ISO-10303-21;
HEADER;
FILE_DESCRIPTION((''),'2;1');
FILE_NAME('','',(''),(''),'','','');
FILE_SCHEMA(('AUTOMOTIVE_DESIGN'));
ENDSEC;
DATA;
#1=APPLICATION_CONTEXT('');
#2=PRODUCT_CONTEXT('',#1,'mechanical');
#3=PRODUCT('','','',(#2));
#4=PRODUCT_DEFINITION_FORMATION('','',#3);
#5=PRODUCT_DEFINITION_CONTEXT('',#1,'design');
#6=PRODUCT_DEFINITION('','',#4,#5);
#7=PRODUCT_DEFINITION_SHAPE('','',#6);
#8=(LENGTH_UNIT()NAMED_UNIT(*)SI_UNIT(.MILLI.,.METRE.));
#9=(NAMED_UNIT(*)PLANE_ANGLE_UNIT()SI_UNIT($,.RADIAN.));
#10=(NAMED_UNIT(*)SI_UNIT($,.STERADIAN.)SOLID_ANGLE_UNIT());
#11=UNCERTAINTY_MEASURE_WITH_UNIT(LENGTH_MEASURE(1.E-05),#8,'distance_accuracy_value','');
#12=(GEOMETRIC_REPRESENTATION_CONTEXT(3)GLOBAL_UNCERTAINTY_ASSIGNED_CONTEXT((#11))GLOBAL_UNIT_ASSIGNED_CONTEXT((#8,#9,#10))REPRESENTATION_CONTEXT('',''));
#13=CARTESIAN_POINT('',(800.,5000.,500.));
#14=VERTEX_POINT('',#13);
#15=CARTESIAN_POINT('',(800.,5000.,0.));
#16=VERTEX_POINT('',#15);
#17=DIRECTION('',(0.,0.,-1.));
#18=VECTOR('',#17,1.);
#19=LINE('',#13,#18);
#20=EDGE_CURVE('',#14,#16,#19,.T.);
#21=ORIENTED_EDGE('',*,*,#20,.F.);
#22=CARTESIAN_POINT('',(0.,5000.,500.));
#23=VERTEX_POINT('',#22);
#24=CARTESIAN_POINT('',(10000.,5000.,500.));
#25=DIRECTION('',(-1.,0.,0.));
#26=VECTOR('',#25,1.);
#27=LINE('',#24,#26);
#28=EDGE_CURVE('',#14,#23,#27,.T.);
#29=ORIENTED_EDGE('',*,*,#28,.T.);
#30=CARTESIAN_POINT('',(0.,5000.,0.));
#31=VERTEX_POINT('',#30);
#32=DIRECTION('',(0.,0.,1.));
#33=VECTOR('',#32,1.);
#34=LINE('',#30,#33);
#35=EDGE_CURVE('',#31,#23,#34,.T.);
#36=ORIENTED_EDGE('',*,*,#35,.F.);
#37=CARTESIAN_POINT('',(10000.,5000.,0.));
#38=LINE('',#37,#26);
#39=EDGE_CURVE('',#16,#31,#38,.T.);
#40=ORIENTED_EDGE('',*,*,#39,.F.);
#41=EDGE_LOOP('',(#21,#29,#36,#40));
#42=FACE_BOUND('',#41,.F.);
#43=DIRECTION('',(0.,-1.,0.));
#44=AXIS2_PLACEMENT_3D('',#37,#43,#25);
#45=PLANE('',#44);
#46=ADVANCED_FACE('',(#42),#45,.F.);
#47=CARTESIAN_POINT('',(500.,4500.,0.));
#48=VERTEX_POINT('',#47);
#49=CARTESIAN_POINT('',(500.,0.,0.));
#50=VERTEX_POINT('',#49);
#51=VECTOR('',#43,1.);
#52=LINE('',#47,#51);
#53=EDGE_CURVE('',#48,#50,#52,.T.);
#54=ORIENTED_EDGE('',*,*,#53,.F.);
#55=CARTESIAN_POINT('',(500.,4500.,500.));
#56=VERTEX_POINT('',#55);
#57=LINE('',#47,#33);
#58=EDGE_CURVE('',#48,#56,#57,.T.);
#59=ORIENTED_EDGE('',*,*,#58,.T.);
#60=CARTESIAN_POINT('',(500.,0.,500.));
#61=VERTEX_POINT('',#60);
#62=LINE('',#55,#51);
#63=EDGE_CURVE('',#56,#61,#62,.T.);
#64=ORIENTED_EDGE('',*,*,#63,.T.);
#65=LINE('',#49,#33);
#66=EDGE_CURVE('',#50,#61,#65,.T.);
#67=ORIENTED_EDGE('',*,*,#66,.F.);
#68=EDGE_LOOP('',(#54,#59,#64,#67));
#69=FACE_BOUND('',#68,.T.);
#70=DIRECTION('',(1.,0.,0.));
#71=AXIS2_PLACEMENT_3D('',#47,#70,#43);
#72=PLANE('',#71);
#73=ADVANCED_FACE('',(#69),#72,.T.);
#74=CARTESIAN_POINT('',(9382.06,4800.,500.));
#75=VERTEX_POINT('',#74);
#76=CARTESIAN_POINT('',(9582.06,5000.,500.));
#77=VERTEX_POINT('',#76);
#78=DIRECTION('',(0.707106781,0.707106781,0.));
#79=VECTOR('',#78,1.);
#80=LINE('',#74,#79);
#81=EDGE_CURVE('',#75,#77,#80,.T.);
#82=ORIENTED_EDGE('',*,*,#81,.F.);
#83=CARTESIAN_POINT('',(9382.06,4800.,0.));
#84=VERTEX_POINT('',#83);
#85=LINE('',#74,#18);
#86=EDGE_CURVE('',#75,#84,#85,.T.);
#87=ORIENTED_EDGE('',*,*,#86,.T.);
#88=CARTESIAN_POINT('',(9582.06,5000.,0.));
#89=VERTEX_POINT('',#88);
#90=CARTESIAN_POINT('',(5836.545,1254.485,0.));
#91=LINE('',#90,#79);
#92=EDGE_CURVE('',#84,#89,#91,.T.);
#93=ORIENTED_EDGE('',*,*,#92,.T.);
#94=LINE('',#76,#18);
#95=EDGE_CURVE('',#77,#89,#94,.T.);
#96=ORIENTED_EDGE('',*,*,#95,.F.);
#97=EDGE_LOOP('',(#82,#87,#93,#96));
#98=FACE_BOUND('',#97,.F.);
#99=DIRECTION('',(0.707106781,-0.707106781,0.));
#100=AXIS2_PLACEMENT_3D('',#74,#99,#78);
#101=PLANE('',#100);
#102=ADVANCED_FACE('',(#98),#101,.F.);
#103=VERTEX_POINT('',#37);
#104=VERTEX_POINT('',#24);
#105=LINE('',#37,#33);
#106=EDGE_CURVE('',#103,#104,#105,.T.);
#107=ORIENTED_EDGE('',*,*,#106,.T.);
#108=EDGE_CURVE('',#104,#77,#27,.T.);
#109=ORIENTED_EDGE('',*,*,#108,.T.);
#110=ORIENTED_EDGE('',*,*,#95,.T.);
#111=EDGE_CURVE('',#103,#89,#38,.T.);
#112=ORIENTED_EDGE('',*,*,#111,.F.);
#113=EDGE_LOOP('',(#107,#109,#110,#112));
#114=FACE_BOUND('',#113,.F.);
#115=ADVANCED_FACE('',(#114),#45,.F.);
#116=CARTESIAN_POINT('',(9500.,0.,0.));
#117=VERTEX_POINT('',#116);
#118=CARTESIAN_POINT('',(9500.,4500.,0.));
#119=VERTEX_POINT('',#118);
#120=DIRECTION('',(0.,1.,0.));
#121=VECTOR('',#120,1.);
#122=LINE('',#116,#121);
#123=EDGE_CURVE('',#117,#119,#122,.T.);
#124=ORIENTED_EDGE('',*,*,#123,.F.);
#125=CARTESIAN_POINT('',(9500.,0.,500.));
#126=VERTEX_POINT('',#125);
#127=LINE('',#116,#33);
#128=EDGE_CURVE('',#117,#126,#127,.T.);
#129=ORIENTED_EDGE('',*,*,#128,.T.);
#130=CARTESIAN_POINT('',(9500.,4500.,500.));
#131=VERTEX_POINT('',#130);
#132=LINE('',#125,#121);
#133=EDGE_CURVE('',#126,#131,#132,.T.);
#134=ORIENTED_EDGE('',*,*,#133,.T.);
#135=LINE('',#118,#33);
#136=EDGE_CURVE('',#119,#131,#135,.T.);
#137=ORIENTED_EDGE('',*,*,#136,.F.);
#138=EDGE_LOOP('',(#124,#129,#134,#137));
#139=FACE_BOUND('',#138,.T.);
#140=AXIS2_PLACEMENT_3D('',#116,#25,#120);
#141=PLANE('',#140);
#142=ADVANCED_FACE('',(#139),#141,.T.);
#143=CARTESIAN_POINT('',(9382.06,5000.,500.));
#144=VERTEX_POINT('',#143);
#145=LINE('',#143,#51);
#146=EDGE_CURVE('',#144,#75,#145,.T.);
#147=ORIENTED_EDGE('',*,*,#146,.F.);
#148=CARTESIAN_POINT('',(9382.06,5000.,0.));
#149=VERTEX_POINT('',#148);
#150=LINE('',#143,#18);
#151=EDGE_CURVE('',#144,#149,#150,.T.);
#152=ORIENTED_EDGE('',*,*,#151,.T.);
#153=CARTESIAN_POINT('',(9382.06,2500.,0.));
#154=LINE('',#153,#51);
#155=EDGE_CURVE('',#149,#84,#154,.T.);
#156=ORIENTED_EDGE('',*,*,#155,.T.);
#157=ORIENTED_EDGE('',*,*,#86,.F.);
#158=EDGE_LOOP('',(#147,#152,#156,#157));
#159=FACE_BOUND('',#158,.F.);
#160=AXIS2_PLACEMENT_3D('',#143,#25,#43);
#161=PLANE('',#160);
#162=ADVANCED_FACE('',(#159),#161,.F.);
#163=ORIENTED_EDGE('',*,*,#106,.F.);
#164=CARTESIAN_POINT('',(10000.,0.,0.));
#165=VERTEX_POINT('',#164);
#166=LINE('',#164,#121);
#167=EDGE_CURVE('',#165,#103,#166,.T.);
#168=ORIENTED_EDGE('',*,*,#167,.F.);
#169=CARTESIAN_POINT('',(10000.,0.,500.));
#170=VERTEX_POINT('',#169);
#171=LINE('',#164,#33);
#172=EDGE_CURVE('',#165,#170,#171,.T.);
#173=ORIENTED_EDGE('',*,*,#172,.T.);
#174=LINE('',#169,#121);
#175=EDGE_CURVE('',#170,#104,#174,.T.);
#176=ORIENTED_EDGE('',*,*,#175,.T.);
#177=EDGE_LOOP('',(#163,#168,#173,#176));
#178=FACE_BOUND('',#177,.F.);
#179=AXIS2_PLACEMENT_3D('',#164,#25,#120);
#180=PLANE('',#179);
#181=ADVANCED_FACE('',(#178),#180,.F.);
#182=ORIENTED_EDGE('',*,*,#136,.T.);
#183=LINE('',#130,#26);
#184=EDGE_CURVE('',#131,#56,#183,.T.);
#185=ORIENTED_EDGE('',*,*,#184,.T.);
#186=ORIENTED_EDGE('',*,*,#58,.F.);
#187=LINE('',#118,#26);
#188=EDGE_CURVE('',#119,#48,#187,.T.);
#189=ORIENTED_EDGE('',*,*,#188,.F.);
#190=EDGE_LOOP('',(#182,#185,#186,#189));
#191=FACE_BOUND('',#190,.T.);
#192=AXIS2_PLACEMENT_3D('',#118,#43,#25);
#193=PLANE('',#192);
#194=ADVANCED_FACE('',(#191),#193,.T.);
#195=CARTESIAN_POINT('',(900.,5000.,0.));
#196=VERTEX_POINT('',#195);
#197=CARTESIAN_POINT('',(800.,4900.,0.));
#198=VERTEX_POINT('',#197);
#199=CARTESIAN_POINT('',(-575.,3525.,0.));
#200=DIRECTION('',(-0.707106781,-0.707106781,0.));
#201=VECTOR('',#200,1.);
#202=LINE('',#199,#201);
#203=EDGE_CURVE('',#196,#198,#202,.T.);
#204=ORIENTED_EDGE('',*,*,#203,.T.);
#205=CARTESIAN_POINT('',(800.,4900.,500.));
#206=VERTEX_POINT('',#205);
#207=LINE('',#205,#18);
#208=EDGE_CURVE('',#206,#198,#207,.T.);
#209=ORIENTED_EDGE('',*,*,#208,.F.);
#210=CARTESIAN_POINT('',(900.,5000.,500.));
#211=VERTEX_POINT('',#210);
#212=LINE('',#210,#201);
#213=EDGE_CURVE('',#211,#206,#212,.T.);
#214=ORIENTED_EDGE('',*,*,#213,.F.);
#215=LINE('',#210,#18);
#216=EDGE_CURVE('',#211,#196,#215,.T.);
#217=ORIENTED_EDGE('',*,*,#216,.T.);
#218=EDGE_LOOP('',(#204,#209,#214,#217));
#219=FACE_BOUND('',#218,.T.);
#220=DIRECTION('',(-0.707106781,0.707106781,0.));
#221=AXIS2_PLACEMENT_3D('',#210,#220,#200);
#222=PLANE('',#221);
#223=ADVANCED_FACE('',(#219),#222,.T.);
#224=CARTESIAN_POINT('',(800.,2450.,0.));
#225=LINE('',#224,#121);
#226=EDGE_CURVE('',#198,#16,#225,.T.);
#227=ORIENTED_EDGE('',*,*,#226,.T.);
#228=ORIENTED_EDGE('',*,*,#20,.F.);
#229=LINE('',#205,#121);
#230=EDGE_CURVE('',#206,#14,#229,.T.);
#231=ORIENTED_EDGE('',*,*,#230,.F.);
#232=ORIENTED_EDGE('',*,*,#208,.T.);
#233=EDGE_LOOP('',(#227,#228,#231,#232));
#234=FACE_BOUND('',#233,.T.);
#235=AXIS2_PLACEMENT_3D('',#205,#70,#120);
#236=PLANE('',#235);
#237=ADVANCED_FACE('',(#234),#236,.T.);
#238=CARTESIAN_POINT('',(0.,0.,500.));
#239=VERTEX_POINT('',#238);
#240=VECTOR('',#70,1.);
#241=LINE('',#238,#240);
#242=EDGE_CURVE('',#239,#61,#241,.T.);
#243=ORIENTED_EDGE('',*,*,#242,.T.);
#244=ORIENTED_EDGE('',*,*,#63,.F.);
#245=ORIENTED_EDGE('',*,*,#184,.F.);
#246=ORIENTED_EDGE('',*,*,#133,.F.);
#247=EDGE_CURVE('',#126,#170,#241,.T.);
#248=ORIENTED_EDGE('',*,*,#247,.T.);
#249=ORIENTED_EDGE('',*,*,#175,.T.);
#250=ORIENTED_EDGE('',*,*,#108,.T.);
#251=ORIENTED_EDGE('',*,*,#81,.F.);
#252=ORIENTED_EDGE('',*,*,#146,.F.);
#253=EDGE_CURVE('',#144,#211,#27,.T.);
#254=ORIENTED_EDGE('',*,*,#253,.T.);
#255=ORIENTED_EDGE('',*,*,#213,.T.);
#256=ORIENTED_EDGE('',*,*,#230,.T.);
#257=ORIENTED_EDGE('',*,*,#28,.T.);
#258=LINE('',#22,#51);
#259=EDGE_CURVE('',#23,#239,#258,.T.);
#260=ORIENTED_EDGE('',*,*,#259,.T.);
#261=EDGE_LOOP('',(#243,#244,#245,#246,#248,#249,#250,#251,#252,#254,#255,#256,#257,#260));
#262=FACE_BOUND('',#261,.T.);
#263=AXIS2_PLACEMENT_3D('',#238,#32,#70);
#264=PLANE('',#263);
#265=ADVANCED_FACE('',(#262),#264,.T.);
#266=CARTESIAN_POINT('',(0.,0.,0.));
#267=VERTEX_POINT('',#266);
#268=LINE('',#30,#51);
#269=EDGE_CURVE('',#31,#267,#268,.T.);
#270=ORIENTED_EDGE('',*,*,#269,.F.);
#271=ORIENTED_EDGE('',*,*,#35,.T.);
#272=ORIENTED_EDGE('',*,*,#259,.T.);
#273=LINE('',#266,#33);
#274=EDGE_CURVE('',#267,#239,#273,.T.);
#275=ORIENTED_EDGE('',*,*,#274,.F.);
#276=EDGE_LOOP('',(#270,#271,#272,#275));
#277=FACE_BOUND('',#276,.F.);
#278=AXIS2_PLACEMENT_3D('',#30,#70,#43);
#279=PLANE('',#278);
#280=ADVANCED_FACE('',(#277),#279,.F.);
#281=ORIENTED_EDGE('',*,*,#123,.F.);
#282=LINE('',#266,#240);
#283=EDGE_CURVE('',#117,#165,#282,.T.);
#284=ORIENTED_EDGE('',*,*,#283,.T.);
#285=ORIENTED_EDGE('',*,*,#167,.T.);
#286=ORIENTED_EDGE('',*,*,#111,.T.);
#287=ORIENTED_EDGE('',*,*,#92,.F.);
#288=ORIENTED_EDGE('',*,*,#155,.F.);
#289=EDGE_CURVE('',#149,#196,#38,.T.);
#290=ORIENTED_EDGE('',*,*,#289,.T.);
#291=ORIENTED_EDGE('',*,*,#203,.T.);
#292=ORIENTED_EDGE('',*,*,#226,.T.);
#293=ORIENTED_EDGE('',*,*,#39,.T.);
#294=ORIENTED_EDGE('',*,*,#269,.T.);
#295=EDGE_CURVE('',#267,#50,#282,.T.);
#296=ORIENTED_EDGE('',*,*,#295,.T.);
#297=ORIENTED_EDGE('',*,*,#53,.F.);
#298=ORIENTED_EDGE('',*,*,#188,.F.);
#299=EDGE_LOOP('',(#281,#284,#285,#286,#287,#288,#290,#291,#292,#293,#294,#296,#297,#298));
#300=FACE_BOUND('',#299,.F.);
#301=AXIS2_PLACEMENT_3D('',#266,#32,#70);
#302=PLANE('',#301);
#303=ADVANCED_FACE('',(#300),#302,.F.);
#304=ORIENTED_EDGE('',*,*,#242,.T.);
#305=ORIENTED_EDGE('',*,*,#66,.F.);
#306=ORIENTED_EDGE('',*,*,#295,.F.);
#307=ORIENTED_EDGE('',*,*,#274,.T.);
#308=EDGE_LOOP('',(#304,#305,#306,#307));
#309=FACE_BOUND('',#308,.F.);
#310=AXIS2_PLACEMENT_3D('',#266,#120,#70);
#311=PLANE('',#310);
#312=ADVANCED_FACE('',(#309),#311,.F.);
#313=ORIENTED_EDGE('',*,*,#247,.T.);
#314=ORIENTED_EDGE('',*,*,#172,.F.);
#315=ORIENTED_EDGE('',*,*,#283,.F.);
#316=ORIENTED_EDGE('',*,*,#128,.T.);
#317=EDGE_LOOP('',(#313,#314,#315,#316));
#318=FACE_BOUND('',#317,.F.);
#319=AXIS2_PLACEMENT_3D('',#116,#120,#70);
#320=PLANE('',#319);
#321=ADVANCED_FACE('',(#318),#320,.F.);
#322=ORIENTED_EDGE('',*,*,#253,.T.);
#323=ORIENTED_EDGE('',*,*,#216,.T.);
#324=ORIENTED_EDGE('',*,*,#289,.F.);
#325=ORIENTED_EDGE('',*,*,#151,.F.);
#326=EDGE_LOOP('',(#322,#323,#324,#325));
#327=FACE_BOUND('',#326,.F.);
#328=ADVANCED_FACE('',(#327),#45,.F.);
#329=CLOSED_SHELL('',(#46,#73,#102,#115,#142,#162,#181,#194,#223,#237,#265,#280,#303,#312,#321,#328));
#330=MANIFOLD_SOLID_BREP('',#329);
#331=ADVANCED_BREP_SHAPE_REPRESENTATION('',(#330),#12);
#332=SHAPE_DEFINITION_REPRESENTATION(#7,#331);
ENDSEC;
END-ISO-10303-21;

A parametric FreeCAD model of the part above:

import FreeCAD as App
import Part
import Sketcher
from FreeCAD import Vector
Q = App.Units.Quantity

doc = App.newDocument("Part")
body = doc.addObject("PartDesign::Body", "Body")

# Sketch on XY plane
sketch1 = body.newObject("Sketcher::SketchObject", "Sketch")
sketch1.AttachmentSupport = (doc.getObject("XY_Plane"), [""])
sketch1.MapMode = "FlatFace"
sketch1.addGeometry([
    Part.LineSegment(Vector(0, 5000, 0), Vector(0, 0, 0)),  # 0
    Part.LineSegment(Vector(0, 0, 0), Vector(500, 0, 0)),  # 1
    Part.LineSegment(Vector(500, 0, 0), Vector(500, 4500, 0)),  # 2
    Part.LineSegment(Vector(500, 4500, 0), Vector(9500, 4500, 0)),  # 3
    Part.LineSegment(Vector(9500, 4500, 0), Vector(9500, 0, 0)),  # 4
    Part.LineSegment(Vector(9500, 0, 0), Vector(10000, 0, 0)),  # 5
    Part.LineSegment(Vector(10000, 0, 0), Vector(10000, 5000, 0)),  # 6
    Part.LineSegment(Vector(10000, 5000, 0), Vector(0, 5000, 0)),  # 7
], False)
sketch1.addConstraint([
    Sketcher.Constraint("Coincident", 0, 2, 1, 1),
    Sketcher.Constraint("Coincident", 1, 2, 2, 1),
    Sketcher.Constraint("Coincident", 2, 2, 3, 1),
    Sketcher.Constraint("Coincident", 3, 2, 4, 1),
    Sketcher.Constraint("Coincident", 4, 2, 5, 1),
    Sketcher.Constraint("Coincident", 5, 2, 6, 1),
    Sketcher.Constraint("Coincident", 6, 2, 7, 1),
    Sketcher.Constraint("Coincident", 7, 2, 0, 1),
    Sketcher.Constraint("Vertical", 0),
    Sketcher.Constraint("Horizontal", 1),
    Sketcher.Constraint("Vertical", 2),
    Sketcher.Constraint("Horizontal", 3),
    Sketcher.Constraint("Vertical", 4),
    Sketcher.Constraint("Horizontal", 5),
    Sketcher.Constraint("Vertical", 6),
    Sketcher.Constraint("Horizontal", 7),
    Sketcher.Constraint("Coincident", 0, 2, -1, 1),
    Sketcher.Constraint("PointOnObject", 4, 2, -1),
    Sketcher.Constraint("Equal", 1, 5),
    Sketcher.Constraint("DistanceX", 1, 1, 1, 2, Q("500 mm")),
    Sketcher.Constraint("DistanceX", 7, 2, 7, 1, Q("10000 mm")),
    Sketcher.Constraint("DistanceY", 0, 2, 0, 1, Q("5000 mm")),
    Sketcher.Constraint("DistanceY", 3, 2, 6, 2, Q("500 mm")),
])
pad1 = body.newObject("PartDesign::Pad", "Pad")
pad1.Profile = sketch1
pad1.Length = 500

# Sketch on XY plane
sketch2 = body.newObject("Sketcher::SketchObject", "Sketch001")
sketch2.AttachmentSupport = (doc.getObject("XY_Plane"), [""])
sketch2.MapMode = "FlatFace"
sketch2.AttachmentOffset = App.Placement(Vector(0, 0, 500), App.Rotation())
sketch2.addGeometry([
    Part.LineSegment(Vector(9382, 4800, 0), Vector(9582, 5000, 0)),  # 0
    Part.LineSegment(Vector(9582, 5000, 0), Vector(9382, 5000, 0)),  # 1
    Part.LineSegment(Vector(9382, 5000, 0), Vector(9382, 4800, 0)),  # 2
    Part.LineSegment(Vector(800, 4900, 0), Vector(900, 5000, 0)),  # 3
    Part.LineSegment(Vector(900, 5000, 0), Vector(800, 5000, 0)),  # 4
    Part.LineSegment(Vector(800, 5000, 0), Vector(800, 4900, 0)),  # 5
], False)
sketch2.addConstraint([
    Sketcher.Constraint("Coincident", 0, 2, 1, 1),
    Sketcher.Constraint("Coincident", 1, 2, 2, 1),
    Sketcher.Constraint("Coincident", 2, 2, 0, 1),
    Sketcher.Constraint("Coincident", 3, 2, 4, 1),
    Sketcher.Constraint("Coincident", 4, 2, 5, 1),
    Sketcher.Constraint("Coincident", 5, 2, 3, 1),
    Sketcher.Constraint("Horizontal", 1),
    Sketcher.Constraint("Vertical", 2),
    Sketcher.Constraint("Horizontal", 4),
    Sketcher.Constraint("Vertical", 5),
    Sketcher.Constraint("Parallel", 0, 3),
    Sketcher.Constraint("Horizontal", 1, 2, 3, 2),
    Sketcher.Constraint("Equal", 1, 2),
    Sketcher.Constraint("DistanceX", 1, 2, 1, 1, Q("200 mm")),
    Sketcher.Constraint("DistanceX", 4, 2, 4, 1, Q("100 mm")),
    Sketcher.Constraint("DistanceX", -1, 1, 4, 2, Q("800 mm")),
    Sketcher.Constraint("DistanceX", 4, 2, 1, 2, Q("8582.06 mm")),
    Sketcher.Constraint("DistanceY", -1, 1, 0, 2, Q("5000 mm")),
])
pocket1 = body.newObject("PartDesign::Pocket", "Pocket")
pocket1.Profile = sketch2
pocket1.Length = 587.25

doc.recompute()
